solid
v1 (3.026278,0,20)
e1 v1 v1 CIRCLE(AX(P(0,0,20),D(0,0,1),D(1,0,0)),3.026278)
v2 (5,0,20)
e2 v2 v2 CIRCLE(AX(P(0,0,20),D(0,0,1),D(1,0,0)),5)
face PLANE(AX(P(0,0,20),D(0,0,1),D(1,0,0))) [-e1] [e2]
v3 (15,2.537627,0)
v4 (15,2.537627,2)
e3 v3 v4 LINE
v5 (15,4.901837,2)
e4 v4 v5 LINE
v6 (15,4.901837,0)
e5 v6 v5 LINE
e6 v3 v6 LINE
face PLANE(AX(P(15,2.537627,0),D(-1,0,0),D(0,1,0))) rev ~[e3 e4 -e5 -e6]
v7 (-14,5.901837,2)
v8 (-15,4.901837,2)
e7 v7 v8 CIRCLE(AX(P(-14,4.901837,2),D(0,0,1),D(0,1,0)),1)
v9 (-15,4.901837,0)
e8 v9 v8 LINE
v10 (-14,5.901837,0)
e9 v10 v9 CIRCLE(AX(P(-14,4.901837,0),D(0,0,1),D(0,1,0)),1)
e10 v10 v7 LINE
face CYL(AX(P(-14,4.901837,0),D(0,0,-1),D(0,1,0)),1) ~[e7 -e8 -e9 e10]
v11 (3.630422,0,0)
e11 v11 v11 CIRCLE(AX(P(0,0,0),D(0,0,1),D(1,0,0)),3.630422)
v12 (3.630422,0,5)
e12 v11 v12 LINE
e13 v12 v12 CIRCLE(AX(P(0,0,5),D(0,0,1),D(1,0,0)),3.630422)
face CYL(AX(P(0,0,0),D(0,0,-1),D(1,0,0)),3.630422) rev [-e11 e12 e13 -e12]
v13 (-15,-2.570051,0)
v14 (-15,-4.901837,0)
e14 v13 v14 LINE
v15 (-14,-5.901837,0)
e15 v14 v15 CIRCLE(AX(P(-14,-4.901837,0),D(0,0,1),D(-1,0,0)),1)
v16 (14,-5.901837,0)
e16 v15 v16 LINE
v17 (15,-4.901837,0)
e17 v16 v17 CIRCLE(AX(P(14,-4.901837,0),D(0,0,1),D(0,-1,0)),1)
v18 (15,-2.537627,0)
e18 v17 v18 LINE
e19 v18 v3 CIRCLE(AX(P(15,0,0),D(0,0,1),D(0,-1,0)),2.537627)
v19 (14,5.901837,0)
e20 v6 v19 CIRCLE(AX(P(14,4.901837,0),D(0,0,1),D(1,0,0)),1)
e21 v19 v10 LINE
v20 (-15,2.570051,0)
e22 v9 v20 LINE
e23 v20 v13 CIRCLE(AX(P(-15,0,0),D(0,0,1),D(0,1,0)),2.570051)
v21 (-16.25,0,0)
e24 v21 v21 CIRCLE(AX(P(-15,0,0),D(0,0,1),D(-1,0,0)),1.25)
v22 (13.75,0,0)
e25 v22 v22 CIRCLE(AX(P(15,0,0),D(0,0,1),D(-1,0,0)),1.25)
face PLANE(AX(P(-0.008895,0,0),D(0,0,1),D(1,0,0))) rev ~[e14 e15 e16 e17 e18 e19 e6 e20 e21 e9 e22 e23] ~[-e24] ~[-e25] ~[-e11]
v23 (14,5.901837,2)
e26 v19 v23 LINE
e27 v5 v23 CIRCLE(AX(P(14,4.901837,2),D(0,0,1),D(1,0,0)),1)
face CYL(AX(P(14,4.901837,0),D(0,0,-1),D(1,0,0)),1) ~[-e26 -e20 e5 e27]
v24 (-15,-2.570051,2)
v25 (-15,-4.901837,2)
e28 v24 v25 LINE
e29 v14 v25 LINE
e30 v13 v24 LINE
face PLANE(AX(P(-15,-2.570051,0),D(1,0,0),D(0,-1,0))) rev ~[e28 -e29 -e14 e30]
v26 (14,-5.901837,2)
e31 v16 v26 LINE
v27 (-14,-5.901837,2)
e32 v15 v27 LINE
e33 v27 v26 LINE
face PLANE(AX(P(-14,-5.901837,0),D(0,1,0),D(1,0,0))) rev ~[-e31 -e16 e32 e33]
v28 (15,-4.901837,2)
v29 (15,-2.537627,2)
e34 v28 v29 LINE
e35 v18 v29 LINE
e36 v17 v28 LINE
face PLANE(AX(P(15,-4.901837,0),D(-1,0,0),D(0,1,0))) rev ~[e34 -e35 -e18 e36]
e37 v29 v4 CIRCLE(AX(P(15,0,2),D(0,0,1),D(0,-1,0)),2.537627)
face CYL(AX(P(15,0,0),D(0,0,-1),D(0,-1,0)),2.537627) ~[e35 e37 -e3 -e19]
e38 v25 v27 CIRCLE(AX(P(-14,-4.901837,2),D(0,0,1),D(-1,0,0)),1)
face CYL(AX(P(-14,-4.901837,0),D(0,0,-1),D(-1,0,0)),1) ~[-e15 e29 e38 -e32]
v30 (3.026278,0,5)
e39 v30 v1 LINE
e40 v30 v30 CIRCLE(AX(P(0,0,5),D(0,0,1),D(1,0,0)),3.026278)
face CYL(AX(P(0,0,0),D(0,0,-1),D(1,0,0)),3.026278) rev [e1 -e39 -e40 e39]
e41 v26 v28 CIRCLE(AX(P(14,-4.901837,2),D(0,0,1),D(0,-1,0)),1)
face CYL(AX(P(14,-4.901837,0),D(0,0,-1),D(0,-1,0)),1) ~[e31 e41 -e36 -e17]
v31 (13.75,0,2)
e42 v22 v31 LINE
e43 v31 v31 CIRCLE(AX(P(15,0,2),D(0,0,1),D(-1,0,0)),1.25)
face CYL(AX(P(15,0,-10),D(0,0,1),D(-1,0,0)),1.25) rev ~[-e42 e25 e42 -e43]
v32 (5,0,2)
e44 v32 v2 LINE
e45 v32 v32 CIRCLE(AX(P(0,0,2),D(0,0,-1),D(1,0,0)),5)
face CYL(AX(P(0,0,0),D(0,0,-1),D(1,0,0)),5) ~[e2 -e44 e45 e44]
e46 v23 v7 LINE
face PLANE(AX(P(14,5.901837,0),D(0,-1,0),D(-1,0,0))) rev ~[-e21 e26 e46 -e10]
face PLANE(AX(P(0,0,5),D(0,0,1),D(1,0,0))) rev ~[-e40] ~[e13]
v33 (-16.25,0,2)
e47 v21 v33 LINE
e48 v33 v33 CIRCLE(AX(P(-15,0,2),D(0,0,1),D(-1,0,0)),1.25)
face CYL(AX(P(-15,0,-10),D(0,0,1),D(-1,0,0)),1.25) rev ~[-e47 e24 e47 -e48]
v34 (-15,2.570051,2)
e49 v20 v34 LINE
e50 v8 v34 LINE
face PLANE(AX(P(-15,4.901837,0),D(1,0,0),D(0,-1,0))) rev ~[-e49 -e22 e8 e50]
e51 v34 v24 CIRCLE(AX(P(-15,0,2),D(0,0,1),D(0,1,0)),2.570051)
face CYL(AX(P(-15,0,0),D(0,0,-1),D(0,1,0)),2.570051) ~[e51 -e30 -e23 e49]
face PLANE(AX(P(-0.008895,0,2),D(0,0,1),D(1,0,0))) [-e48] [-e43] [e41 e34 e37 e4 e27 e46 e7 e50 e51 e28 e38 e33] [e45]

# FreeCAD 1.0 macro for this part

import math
import FreeCAD as App
import Part
import Sketcher
from FreeCAD import Vector
Q = App.Units.Quantity

doc = App.newDocument("Part")
body = doc.addObject("PartDesign::Body", "Body")

# Sketch on XY plane
sketch1 = doc.addObject("Sketcher::SketchObject", "Sketch")
body.addObject(sketch1)
sketch1.AttachmentSupport = (doc.XY_Plane, [""])
sketch1.MapMode = "FlatFace"
sketch1.addGeometry([
    Part.LineSegment(Vector(-14, -5.9, 0), Vector(14, -5.9, 0)),  # 0
    Part.ArcOfCircle(Part.Circle(Vector(14, -4.9, 0), Vector(0, 0, 1), 1), math.radians(-90), math.radians(0)),  # 1
    Part.LineSegment(Vector(15, -4.9, 0), Vector(15, -2.5, 0)),  # 2
    Part.ArcOfCircle(Part.Circle(Vector(15, 0, 0), Vector(0, 0, 1), 2.5), math.radians(-90), math.radians(90)),  # 3
    Part.LineSegment(Vector(15, 2.5, 0), Vector(15, 4.9, 0)),  # 4
    Part.ArcOfCircle(Part.Circle(Vector(14, 4.9, 0), Vector(0, 0, 1), 1), math.radians(0), math.radians(90)),  # 5
    Part.LineSegment(Vector(14, 5.9, 0), Vector(-14, 5.9, 0)),  # 6
    Part.ArcOfCircle(Part.Circle(Vector(-14, 4.9, 0), Vector(0, 0, 1), 1), math.radians(90), math.radians(180)),  # 7
    Part.LineSegment(Vector(-15, 4.9, 0), Vector(-15, 2.6, 0)),  # 8
    Part.ArcOfCircle(Part.Circle(Vector(-15, 0, 0), Vector(0, 0, 1), 2.6), math.radians(90), math.radians(270)),  # 9
    Part.LineSegment(Vector(-15, -2.6, 0), Vector(-15, -4.9, 0)),  # 10
    Part.ArcOfCircle(Part.Circle(Vector(-14, -4.9, 0), Vector(0, 0, 1), 1), math.radians(180), math.radians(270)),  # 11
    Part.Circle(Vector(0, 0, 0), Vector(0, 0, 1), 3),  # 12
], False)
sketch1.addConstraint([
    Sketcher.Constraint("Tangent", 0, 2, 1, 1),
    Sketcher.Constraint("Tangent", 1, 2, 2, 1),
    Sketcher.Constraint("Coincident", 2, 2, 3, 1),
    Sketcher.Constraint("Coincident", 3, 2, 4, 1),
    Sketcher.Constraint("Tangent", 4, 2, 5, 1),
    Sketcher.Constraint("Tangent", 5, 2, 6, 1),
    Sketcher.Constraint("Tangent", 6, 2, 7, 1),
    Sketcher.Constraint("Tangent", 7, 2, 8, 1),
    Sketcher.Constraint("Coincident", 8, 2, 9, 1),
    Sketcher.Constraint("Coincident", 9, 2, 10, 1),
    Sketcher.Constraint("Tangent", 10, 2, 11, 1),
    Sketcher.Constraint("Tangent", 11, 2, 0, 1),
    Sketcher.Constraint("Horizontal", 0),
    Sketcher.Constraint("Vertical", 2),
    Sketcher.Constraint("Vertical", 4),
    Sketcher.Constraint("Horizontal", 6),
    Sketcher.Constraint("Vertical", 8),
    Sketcher.Constraint("Vertical", 10),
    Sketcher.Constraint("Coincident", 12, 3, -1, 1),
    Sketcher.Constraint("Equal", 1, 5),
    Sketcher.Constraint("Equal", 5, 7),
    Sketcher.Constraint("Equal", 7, 11),
    Sketcher.Constraint("Symmetric", 1, 3, 7, 3, -1, 1),
    Sketcher.Constraint("Symmetric", 3, 3, 9, 3, -1, 1),
    Sketcher.Constraint("Symmetric", 2, 2, 3, 2, -1),
    Sketcher.Constraint("Vertical", 7, 3, 11, 3),
    Sketcher.Constraint("Vertical", 3, 3, 1, 2),
    Sketcher.Constraint("Radius", 1, Q("1 mm")),
    Sketcher.Constraint("DistanceX", 0, 1, 0, 2, Q("28 mm")),
    Sketcher.Constraint("Radius", 9, Q("2.570051 mm")),
    Sketcher.Constraint("Diameter", 12, Q("6.052557 mm")),
    Sketcher.Constraint("Radius", 3, Q("2.537627 mm")),
    Sketcher.Constraint("DistanceY", 2, 1, 2, 2, Q("2.364211 mm")),
])
pad1 = doc.addObject("PartDesign::Pad", "Pad")
body.addObject(pad1)
pad1.Profile = sketch1
pad1.Length = 2

# Sketch on XY plane
sketch2 = doc.addObject("Sketcher::SketchObject", "Sketch001")
body.addObject(sketch2)
sketch2.AttachmentSupport = (doc.XY_Plane, [""])
sketch2.MapMode = "FlatFace"
sketch2.addGeometry([
    Part.Circle(Vector(0, 0, 0), Vector(0, 0, 1), 5),
    Part.Circle(Vector(0, 0, 0), Vector(0, 0, 1), 3),
], False)
sketch2.addConstraint([
    Sketcher.Constraint("Coincident", 0, 3, -1, 1),
    Sketcher.Constraint("Coincident", 1, 3, -1, 1),
    Sketcher.Constraint("Diameter", 0, Q("10 mm")),
    Sketcher.Constraint("Diameter", 1, Q("6.052557 mm")),
])
pad2 = doc.addObject("PartDesign::Pad", "Pad001")
body.addObject(pad2)
pad2.Profile = sketch2
pad2.Length = 20

# Sketch on XY plane
sketch3 = doc.addObject("Sketcher::SketchObject", "Sketch002")
body.addObject(sketch3)
sketch3.AttachmentSupport = (doc.XY_Plane, [""])
sketch3.MapMode = "FlatFace"
sketch3.addGeometry([
    Part.Circle(Vector(-15, 0, 0), Vector(0, 0, 1), 1.2),
    Part.Circle(Vector(15, 0, 0), Vector(0, 0, 1), 1.2),
], False)
sketch3.addConstraint([
    Sketcher.Constraint("Equal", 0, 1),
    Sketcher.Constraint("Symmetric", 0, 3, 1, 3, -1, 1),
    Sketcher.Constraint("PointOnObject", 0, 3, -1),
    Sketcher.Constraint("Diameter", 0, Q("2.5 mm")),
    Sketcher.Constraint("DistanceX", 0, 3, -1, 1, Q("15 mm")),
])
doc.recompute()
hole = doc.addObject("PartDesign::Hole", "Hole")
body.addObject(hole)
hole.Profile = sketch3
hole.ThreadType = "None"
hole.Diameter = 2.5
hole.DepthType = "Dimension"
hole.Depth = 10
hole.DrillPoint = "Angled"
hole.DrillPointAngle = 118
hole.Reversed = True

# Sketch on XY plane
sketch4 = doc.addObject("Sketcher::SketchObject", "Sketch003")
body.addObject(sketch4)
sketch4.AttachmentSupport = (doc.XY_Plane, [""])
sketch4.MapMode = "FlatFace"
sketch4.addGeometry([
    Part.Circle(Vector(0, 0, 0), Vector(0, 0, 1), 3.6),
    Part.Circle(Vector(0, 0, 0), Vector(0, 0, 1), 3),
], False)
sketch4.addConstraint([
    Sketcher.Constraint("Coincident", 0, 3, -1, 1),
    Sketcher.Constraint("Coincident", 1, 3, -1, 1),
    Sketcher.Constraint("Diameter", 0, Q("7.260844 mm")),
    Sketcher.Constraint("Diameter", 1, Q("6.052557 mm")),
])
pocket1 = doc.addObject("PartDesign::Pocket", "Pocket")
body.addObject(pocket1)
pocket1.Profile = sketch4
pocket1.Length = 5
pocket1.Reversed = True

doc.recompute()
